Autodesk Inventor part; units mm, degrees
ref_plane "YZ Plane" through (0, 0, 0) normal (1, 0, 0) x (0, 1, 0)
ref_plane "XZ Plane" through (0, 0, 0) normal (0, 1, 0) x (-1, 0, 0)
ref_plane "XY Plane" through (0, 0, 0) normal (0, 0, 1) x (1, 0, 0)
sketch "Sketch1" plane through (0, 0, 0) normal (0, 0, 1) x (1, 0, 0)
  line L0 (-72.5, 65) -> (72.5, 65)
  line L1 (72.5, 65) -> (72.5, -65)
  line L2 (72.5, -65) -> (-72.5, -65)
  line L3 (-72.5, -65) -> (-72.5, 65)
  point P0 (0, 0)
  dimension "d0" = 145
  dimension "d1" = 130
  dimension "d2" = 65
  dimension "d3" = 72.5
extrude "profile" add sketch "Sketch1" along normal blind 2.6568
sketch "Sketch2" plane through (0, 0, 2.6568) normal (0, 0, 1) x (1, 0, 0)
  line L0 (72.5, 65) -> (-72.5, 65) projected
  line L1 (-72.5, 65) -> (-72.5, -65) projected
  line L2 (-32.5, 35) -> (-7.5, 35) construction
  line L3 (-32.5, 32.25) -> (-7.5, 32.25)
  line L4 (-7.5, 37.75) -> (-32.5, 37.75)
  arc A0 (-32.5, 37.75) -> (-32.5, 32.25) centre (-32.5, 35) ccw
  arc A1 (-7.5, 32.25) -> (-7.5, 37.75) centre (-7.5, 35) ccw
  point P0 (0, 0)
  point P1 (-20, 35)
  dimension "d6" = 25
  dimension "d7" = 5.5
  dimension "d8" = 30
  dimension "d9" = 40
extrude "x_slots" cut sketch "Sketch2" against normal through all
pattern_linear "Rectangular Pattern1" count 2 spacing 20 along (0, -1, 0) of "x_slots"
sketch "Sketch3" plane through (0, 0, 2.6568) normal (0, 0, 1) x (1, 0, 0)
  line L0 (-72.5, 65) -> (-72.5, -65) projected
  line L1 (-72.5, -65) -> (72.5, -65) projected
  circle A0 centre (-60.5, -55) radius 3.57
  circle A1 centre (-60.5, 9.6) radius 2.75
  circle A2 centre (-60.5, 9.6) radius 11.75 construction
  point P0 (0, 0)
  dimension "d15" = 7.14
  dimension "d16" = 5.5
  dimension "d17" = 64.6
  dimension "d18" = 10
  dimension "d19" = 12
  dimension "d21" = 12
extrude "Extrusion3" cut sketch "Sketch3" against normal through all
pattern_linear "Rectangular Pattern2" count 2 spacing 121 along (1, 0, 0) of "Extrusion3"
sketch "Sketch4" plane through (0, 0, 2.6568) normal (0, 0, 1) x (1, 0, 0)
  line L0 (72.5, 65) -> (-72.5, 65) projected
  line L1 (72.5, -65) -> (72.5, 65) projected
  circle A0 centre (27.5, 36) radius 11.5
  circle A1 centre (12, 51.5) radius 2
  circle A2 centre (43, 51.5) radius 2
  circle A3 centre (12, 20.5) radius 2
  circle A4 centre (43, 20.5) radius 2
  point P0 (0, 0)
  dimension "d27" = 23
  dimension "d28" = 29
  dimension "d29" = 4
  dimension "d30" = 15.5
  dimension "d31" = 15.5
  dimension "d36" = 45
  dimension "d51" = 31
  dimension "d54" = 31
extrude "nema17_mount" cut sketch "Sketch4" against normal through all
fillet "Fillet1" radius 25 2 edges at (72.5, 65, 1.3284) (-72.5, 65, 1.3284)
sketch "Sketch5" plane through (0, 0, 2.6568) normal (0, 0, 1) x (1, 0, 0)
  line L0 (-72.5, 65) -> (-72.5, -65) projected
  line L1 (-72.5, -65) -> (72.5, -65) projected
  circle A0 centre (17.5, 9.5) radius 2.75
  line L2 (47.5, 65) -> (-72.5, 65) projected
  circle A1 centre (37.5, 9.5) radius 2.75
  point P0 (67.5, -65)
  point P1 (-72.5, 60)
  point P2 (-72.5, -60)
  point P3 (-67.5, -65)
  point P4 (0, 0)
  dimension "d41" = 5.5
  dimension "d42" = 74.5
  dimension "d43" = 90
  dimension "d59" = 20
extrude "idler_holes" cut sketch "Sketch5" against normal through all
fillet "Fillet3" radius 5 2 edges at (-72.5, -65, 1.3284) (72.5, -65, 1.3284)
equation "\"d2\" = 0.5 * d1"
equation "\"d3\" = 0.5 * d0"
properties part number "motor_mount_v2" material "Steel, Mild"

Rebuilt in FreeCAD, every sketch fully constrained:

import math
import FreeCAD as App
import Part
import Sketcher

V = App.Vector
Q = App.Units.Quantity


def edges_at(feature, points):
    """Names of the edges that pass closest to the given points."""
    edges = feature.Shape.Edges
    near = lambda p: min(range(len(edges)), key=lambda i: edges[i].distToShape(Part.Vertex(*p))[0])
    return sorted({f"Edge{near(p) + 1}" for p in points})


def add_polygon(sketch, points):
    """Adds a closed chain of lines whose ends are joined by coincident constraints."""
    first, n = sketch.GeometryCount, len(points)
    for a, b in zip(points, points[1:] + points[:1]):
        sketch.addGeometry(Part.LineSegment(App.Vector(*a, 0), App.Vector(*b, 0)), False)
    for i in range(n):
        sketch.addConstraint(Sketcher.Constraint("Coincident", first + i, 2, first + (i + 1) % n, 1))

doc = App.newDocument("Part")
body = doc.addObject("PartDesign::Body", "Body")

sketch1 = body.newObject("Sketcher::SketchObject", "Sketch")
sketch1.AttachmentSupport = (doc.getObject("XY_Plane"), [""])
sketch1.MapMode = "FlatFace"
add_polygon(sketch1, [(72.5, 65), (-72.5, 65), (-72.5, -65), (72.5, -65)])
sketch1.addConstraint([
    Sketcher.Constraint("Horizontal", 0),
    Sketcher.Constraint("Vertical", 1),
    Sketcher.Constraint("Horizontal", 2),
    Sketcher.Constraint("Vertical", 3),
    Sketcher.Constraint("Symmetric", 0, 2, 2, 2, -1, 1),
    Sketcher.Constraint("DistanceX", 0, 2, 0, 1, Q("145 mm")),
    Sketcher.Constraint("DistanceY", 1, 2, 1, 1, Q("130 mm")),
])
pad1 = body.newObject("PartDesign::Pad", "Pad")
pad1.Profile = sketch1
pad1.Length = 2.6568

sketch2 = body.newObject("Sketcher::SketchObject", "Sketch001")
sketch2.AttachmentSupport = (doc.getObject("XY_Plane"), [""])
sketch2.MapMode = "FlatFace"
sketch2.AttachmentOffset = App.Placement(V(0, 0, 2.6568), App.Rotation())
sketch2.addGeometry([
    Part.ArcOfCircle(Part.Circle(V(-32.5, 35, 0), V(0, 0, 1), 2.75), math.radians(90), math.radians(270)),
    Part.LineSegment(V(-32.5, 32.25, 0), V(-7.5, 32.25, 0)),
    Part.ArcOfCircle(Part.Circle(V(-7.5, 35, 0), V(0, 0, 1), 2.75), math.radians(-90), math.radians(90)),
    Part.LineSegment(V(-7.5, 37.75, 0), V(-32.5, 37.75, 0)),
], False)
sketch2.addConstraint([
    Sketcher.Constraint("Tangent", 0, 2, 1, 1),
    Sketcher.Constraint("Tangent", 1, 2, 2, 1),
    Sketcher.Constraint("Tangent", 2, 2, 3, 1),
    Sketcher.Constraint("Tangent", 3, 2, 0, 1),
    Sketcher.Constraint("Horizontal", 1),
    Sketcher.Constraint("Horizontal", 3),
    Sketcher.Constraint("DistanceX", 1, 1, 1, 2, Q("25 mm")),
    Sketcher.Constraint("Radius", 0, Q("2.75 mm")),
    Sketcher.Constraint("DistanceY", -1, 1, 0, 3, Q("35 mm")),
    Sketcher.Constraint("DistanceX", 0, 3, -1, 1, Q("32.5 mm")),
])
pocket1 = body.newObject("PartDesign::Pocket", "Pocket")
pocket1.Profile = sketch2
pocket1.Type = "ThroughAll"
doc.recompute()

linearpattern = body.newObject("PartDesign::LinearPattern", "LinearPattern")
linearpattern.Originals = [pocket1]
linearpattern.Direction = (doc.getObject("Y_Axis"), [""])
linearpattern.Mode = "offset"
linearpattern.Offset = 20
linearpattern.Occurrences = 2
linearpattern.Reversed = True
body.Tip = linearpattern

sketch3 = body.newObject("Sketcher::SketchObject", "Sketch002")
sketch3.AttachmentSupport = (doc.getObject("XY_Plane"), [""])
sketch3.MapMode = "FlatFace"
sketch3.AttachmentOffset = App.Placement(V(0, 0, 2.6568), App.Rotation())
sketch3.addGeometry([
    Part.Circle(V(-60.5, -55, 0), V(0, 0, 1), 3.57),
    Part.Circle(V(-60.5, 9.6, 0), V(0, 0, 1), 2.75),
], False)
sketch3.addConstraint([
    Sketcher.Constraint("Vertical", 0, 3, 1, 3),
    Sketcher.Constraint("Diameter", 1, Q("5.5 mm")),
    Sketcher.Constraint("Diameter", 0, Q("7.14 mm")),
    Sketcher.Constraint("DistanceY", 0, 3, 1, 3, Q("64.6 mm")),
    Sketcher.Constraint("DistanceY", 0, 3, -1, 1, Q("55 mm")),
    Sketcher.Constraint("DistanceX", 0, 3, -1, 1, Q("60.5 mm")),
])
pocket2 = body.newObject("PartDesign::Pocket", "Pocket001")
pocket2.Profile = sketch3
pocket2.Type = "ThroughAll"
doc.recompute()

linearpattern2 = body.newObject("PartDesign::LinearPattern", "LinearPattern001")
linearpattern2.Originals = [pocket2]
linearpattern2.Direction = (doc.getObject("X_Axis"), [""])
linearpattern2.Mode = "offset"
linearpattern2.Offset = 121
linearpattern2.Occurrences = 2
body.Tip = linearpattern2

sketch4 = body.newObject("Sketcher::SketchObject", "Sketch003")
sketch4.AttachmentSupport = (doc.getObject("XY_Plane"), [""])
sketch4.MapMode = "FlatFace"
sketch4.AttachmentOffset = App.Placement(V(0, 0, 2.6568), App.Rotation())
sketch4.addGeometry([
    Part.Circle(V(27.5, 36, 0), V(0, 0, 1), 11.5),
    Part.Circle(V(12, 51.5, 0), V(0, 0, 1), 2),
    Part.Circle(V(43, 51.5, 0), V(0, 0, 1), 2),
    Part.Circle(V(12, 20.5, 0), V(0, 0, 1), 2),
    Part.Circle(V(43, 20.5, 0), V(0, 0, 1), 2),
], False)
sketch4.addConstraint([
    Sketcher.Constraint("Equal", 1, 2),
    Sketcher.Constraint("Equal", 2, 3),
    Sketcher.Constraint("Equal", 3, 4),
    Sketcher.Constraint("Horizontal", 1, 3, 2, 3),
    Sketcher.Constraint("Horizontal", 3, 3, 4, 3),
    Sketcher.Constraint("Vertical", 1, 3, 3, 3),
    Sketcher.Constraint("Vertical", 2, 3, 4, 3),
    Sketcher.Constraint("Diameter", 0, Q("23 mm")),
    Sketcher.Constraint("Diameter", 1, Q("4 mm")),
    Sketcher.Constraint("DistanceX", 1, 3, 2, 3, Q("31 mm")),
    Sketcher.Constraint("DistanceY", 3, 3, 1, 3, Q("31 mm")),
    Sketcher.Constraint("DistanceX", 1, 3, 0, 3, Q("15.5 mm")),
    Sketcher.Constraint("DistanceY", 0, 3, 1, 3, Q("15.5 mm")),
    Sketcher.Constraint("DistanceY", -1, 1, 0, 3, Q("36 mm")),
    Sketcher.Constraint("DistanceX", -1, 1, 1, 3, Q("12 mm")),
])
pocket3 = body.newObject("PartDesign::Pocket", "Pocket002")
pocket3.Profile = sketch4
pocket3.Type = "ThroughAll"
doc.recompute()

fillet = body.newObject("PartDesign::Fillet", "Fillet")
fillet.Base = (pocket3, edges_at(pocket3, [(72.5, 65, 1.328), (-72.5, 65, 1.328)]))
fillet.Radius = 25

sketch5 = body.newObject("Sketcher::SketchObject", "Sketch004")
sketch5.AttachmentSupport = (doc.getObject("XY_Plane"), [""])
sketch5.MapMode = "FlatFace"
sketch5.AttachmentOffset = App.Placement(V(0, 0, 2.6568), App.Rotation())
sketch5.addGeometry([
    Part.Circle(V(17.5, 9.5, 0), V(0, 0, 1), 2.75),
    Part.Circle(V(37.5, 9.5, 0), V(0, 0, 1), 2.75),
], False)
sketch5.addConstraint([
    Sketcher.Constraint("Equal", 0, 1),
    Sketcher.Constraint("Horizontal", 0, 3, 1, 3),
    Sketcher.Constraint("Diameter", 0, Q("5.5 mm")),
    Sketcher.Constraint("DistanceX", 0, 3, 1, 3, Q("20 mm")),
    Sketcher.Constraint("DistanceX", -1, 1, 0, 3, Q("17.5 mm")),
    Sketcher.Constraint("DistanceY", -1, 1, 0, 3, Q("9.5 mm")),
])
pocket4 = body.newObject("PartDesign::Pocket", "Pocket003")
pocket4.Profile = sketch5
pocket4.Type = "ThroughAll"
doc.recompute()

fillet2 = body.newObject("PartDesign::Fillet", "Fillet001")
fillet2.Base = (pocket4, edges_at(pocket4, [(-72.5, -65, 1.328), (72.5, -65, 1.328)]))
fillet2.Radius = 5

doc.recompute()
